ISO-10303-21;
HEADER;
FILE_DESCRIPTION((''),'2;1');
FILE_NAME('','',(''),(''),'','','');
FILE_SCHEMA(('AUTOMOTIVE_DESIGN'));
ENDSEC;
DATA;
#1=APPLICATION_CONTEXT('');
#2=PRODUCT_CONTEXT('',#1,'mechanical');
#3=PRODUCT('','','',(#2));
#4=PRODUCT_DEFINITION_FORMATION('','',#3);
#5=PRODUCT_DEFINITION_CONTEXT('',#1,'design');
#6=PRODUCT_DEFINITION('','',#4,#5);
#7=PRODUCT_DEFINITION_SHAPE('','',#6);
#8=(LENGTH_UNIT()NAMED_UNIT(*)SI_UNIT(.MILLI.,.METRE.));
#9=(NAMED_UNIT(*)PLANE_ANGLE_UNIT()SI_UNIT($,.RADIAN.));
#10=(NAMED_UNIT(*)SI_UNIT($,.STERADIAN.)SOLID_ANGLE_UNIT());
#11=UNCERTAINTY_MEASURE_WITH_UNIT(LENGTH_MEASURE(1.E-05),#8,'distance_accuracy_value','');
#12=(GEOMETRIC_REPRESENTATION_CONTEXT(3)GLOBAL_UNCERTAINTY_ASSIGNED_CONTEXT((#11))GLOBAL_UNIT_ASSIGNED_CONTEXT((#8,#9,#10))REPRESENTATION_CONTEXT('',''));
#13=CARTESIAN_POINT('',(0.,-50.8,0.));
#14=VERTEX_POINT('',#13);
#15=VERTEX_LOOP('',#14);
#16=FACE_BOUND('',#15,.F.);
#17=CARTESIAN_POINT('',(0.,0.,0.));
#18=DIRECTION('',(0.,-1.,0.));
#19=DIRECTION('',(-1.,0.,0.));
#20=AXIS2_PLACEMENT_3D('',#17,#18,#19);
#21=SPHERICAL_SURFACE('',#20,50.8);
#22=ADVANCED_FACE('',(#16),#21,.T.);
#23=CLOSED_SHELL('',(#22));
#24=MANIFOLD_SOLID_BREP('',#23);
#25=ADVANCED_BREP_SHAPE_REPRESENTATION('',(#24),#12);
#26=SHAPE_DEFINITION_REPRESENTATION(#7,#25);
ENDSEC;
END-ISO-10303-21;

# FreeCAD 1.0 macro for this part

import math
import FreeCAD as App
import Part
import Sketcher

V = App.Vector
Q = App.Units.Quantity

doc = App.newDocument("Part")
params = doc.addObject("Spreadsheet::Sheet", "Params")
for row, (alias, value) in enumerate([
    ("sketch1_radius", "2 in"),
    ("revolution_angle", "360 deg"),
], start=1):
    params.set(f"A{row}", alias)
    params.set(f"B{row}", "=" + value)
    params.setAlias(f"B{row}", alias)

body = doc.addObject("PartDesign::Body", "Body")

sketch1 = body.newObject("Sketcher::SketchObject", "Sketch")
sketch1.AttachmentSupport = (doc.getObject("XY_Plane"), [""])
sketch1.MapMode = "FlatFace"
sketch1.addGeometry(Part.ArcOfCircle(Part.Circle(V(0, 0, 0), V(0, 0, 1), 51), math.radians(90), math.radians(270)), False)
sketch1.addGeometry(Part.LineSegment(V(0, -51, 0), V(0, 51, 0)), False)
sketch1.addConstraint(Sketcher.Constraint("Coincident", 0, 1, 1, 2))
sketch1.addConstraint(Sketcher.Constraint("Coincident", 1, 1, 0, 2))
sketch1.addConstraint(Sketcher.Constraint("Vertical", 1))
sketch1.addConstraint(Sketcher.Constraint("Coincident", 0, 3, -1, 1))
sketch1.addConstraint(Sketcher.Constraint("PointOnObject", 0, 1, -2))
sketch1.addConstraint(Sketcher.Constraint("Radius", 0, Q("2 in")))
sketch1.setExpression("Constraints[5]", "Params.sketch1_radius")
revolution = body.newObject("PartDesign::Revolution", "Revolution")
revolution.Profile = sketch1
revolution.ReferenceAxis = (sketch1, ["V_Axis"])
revolution.setExpression("Angle", "Params.revolution_angle")

doc.recompute()
